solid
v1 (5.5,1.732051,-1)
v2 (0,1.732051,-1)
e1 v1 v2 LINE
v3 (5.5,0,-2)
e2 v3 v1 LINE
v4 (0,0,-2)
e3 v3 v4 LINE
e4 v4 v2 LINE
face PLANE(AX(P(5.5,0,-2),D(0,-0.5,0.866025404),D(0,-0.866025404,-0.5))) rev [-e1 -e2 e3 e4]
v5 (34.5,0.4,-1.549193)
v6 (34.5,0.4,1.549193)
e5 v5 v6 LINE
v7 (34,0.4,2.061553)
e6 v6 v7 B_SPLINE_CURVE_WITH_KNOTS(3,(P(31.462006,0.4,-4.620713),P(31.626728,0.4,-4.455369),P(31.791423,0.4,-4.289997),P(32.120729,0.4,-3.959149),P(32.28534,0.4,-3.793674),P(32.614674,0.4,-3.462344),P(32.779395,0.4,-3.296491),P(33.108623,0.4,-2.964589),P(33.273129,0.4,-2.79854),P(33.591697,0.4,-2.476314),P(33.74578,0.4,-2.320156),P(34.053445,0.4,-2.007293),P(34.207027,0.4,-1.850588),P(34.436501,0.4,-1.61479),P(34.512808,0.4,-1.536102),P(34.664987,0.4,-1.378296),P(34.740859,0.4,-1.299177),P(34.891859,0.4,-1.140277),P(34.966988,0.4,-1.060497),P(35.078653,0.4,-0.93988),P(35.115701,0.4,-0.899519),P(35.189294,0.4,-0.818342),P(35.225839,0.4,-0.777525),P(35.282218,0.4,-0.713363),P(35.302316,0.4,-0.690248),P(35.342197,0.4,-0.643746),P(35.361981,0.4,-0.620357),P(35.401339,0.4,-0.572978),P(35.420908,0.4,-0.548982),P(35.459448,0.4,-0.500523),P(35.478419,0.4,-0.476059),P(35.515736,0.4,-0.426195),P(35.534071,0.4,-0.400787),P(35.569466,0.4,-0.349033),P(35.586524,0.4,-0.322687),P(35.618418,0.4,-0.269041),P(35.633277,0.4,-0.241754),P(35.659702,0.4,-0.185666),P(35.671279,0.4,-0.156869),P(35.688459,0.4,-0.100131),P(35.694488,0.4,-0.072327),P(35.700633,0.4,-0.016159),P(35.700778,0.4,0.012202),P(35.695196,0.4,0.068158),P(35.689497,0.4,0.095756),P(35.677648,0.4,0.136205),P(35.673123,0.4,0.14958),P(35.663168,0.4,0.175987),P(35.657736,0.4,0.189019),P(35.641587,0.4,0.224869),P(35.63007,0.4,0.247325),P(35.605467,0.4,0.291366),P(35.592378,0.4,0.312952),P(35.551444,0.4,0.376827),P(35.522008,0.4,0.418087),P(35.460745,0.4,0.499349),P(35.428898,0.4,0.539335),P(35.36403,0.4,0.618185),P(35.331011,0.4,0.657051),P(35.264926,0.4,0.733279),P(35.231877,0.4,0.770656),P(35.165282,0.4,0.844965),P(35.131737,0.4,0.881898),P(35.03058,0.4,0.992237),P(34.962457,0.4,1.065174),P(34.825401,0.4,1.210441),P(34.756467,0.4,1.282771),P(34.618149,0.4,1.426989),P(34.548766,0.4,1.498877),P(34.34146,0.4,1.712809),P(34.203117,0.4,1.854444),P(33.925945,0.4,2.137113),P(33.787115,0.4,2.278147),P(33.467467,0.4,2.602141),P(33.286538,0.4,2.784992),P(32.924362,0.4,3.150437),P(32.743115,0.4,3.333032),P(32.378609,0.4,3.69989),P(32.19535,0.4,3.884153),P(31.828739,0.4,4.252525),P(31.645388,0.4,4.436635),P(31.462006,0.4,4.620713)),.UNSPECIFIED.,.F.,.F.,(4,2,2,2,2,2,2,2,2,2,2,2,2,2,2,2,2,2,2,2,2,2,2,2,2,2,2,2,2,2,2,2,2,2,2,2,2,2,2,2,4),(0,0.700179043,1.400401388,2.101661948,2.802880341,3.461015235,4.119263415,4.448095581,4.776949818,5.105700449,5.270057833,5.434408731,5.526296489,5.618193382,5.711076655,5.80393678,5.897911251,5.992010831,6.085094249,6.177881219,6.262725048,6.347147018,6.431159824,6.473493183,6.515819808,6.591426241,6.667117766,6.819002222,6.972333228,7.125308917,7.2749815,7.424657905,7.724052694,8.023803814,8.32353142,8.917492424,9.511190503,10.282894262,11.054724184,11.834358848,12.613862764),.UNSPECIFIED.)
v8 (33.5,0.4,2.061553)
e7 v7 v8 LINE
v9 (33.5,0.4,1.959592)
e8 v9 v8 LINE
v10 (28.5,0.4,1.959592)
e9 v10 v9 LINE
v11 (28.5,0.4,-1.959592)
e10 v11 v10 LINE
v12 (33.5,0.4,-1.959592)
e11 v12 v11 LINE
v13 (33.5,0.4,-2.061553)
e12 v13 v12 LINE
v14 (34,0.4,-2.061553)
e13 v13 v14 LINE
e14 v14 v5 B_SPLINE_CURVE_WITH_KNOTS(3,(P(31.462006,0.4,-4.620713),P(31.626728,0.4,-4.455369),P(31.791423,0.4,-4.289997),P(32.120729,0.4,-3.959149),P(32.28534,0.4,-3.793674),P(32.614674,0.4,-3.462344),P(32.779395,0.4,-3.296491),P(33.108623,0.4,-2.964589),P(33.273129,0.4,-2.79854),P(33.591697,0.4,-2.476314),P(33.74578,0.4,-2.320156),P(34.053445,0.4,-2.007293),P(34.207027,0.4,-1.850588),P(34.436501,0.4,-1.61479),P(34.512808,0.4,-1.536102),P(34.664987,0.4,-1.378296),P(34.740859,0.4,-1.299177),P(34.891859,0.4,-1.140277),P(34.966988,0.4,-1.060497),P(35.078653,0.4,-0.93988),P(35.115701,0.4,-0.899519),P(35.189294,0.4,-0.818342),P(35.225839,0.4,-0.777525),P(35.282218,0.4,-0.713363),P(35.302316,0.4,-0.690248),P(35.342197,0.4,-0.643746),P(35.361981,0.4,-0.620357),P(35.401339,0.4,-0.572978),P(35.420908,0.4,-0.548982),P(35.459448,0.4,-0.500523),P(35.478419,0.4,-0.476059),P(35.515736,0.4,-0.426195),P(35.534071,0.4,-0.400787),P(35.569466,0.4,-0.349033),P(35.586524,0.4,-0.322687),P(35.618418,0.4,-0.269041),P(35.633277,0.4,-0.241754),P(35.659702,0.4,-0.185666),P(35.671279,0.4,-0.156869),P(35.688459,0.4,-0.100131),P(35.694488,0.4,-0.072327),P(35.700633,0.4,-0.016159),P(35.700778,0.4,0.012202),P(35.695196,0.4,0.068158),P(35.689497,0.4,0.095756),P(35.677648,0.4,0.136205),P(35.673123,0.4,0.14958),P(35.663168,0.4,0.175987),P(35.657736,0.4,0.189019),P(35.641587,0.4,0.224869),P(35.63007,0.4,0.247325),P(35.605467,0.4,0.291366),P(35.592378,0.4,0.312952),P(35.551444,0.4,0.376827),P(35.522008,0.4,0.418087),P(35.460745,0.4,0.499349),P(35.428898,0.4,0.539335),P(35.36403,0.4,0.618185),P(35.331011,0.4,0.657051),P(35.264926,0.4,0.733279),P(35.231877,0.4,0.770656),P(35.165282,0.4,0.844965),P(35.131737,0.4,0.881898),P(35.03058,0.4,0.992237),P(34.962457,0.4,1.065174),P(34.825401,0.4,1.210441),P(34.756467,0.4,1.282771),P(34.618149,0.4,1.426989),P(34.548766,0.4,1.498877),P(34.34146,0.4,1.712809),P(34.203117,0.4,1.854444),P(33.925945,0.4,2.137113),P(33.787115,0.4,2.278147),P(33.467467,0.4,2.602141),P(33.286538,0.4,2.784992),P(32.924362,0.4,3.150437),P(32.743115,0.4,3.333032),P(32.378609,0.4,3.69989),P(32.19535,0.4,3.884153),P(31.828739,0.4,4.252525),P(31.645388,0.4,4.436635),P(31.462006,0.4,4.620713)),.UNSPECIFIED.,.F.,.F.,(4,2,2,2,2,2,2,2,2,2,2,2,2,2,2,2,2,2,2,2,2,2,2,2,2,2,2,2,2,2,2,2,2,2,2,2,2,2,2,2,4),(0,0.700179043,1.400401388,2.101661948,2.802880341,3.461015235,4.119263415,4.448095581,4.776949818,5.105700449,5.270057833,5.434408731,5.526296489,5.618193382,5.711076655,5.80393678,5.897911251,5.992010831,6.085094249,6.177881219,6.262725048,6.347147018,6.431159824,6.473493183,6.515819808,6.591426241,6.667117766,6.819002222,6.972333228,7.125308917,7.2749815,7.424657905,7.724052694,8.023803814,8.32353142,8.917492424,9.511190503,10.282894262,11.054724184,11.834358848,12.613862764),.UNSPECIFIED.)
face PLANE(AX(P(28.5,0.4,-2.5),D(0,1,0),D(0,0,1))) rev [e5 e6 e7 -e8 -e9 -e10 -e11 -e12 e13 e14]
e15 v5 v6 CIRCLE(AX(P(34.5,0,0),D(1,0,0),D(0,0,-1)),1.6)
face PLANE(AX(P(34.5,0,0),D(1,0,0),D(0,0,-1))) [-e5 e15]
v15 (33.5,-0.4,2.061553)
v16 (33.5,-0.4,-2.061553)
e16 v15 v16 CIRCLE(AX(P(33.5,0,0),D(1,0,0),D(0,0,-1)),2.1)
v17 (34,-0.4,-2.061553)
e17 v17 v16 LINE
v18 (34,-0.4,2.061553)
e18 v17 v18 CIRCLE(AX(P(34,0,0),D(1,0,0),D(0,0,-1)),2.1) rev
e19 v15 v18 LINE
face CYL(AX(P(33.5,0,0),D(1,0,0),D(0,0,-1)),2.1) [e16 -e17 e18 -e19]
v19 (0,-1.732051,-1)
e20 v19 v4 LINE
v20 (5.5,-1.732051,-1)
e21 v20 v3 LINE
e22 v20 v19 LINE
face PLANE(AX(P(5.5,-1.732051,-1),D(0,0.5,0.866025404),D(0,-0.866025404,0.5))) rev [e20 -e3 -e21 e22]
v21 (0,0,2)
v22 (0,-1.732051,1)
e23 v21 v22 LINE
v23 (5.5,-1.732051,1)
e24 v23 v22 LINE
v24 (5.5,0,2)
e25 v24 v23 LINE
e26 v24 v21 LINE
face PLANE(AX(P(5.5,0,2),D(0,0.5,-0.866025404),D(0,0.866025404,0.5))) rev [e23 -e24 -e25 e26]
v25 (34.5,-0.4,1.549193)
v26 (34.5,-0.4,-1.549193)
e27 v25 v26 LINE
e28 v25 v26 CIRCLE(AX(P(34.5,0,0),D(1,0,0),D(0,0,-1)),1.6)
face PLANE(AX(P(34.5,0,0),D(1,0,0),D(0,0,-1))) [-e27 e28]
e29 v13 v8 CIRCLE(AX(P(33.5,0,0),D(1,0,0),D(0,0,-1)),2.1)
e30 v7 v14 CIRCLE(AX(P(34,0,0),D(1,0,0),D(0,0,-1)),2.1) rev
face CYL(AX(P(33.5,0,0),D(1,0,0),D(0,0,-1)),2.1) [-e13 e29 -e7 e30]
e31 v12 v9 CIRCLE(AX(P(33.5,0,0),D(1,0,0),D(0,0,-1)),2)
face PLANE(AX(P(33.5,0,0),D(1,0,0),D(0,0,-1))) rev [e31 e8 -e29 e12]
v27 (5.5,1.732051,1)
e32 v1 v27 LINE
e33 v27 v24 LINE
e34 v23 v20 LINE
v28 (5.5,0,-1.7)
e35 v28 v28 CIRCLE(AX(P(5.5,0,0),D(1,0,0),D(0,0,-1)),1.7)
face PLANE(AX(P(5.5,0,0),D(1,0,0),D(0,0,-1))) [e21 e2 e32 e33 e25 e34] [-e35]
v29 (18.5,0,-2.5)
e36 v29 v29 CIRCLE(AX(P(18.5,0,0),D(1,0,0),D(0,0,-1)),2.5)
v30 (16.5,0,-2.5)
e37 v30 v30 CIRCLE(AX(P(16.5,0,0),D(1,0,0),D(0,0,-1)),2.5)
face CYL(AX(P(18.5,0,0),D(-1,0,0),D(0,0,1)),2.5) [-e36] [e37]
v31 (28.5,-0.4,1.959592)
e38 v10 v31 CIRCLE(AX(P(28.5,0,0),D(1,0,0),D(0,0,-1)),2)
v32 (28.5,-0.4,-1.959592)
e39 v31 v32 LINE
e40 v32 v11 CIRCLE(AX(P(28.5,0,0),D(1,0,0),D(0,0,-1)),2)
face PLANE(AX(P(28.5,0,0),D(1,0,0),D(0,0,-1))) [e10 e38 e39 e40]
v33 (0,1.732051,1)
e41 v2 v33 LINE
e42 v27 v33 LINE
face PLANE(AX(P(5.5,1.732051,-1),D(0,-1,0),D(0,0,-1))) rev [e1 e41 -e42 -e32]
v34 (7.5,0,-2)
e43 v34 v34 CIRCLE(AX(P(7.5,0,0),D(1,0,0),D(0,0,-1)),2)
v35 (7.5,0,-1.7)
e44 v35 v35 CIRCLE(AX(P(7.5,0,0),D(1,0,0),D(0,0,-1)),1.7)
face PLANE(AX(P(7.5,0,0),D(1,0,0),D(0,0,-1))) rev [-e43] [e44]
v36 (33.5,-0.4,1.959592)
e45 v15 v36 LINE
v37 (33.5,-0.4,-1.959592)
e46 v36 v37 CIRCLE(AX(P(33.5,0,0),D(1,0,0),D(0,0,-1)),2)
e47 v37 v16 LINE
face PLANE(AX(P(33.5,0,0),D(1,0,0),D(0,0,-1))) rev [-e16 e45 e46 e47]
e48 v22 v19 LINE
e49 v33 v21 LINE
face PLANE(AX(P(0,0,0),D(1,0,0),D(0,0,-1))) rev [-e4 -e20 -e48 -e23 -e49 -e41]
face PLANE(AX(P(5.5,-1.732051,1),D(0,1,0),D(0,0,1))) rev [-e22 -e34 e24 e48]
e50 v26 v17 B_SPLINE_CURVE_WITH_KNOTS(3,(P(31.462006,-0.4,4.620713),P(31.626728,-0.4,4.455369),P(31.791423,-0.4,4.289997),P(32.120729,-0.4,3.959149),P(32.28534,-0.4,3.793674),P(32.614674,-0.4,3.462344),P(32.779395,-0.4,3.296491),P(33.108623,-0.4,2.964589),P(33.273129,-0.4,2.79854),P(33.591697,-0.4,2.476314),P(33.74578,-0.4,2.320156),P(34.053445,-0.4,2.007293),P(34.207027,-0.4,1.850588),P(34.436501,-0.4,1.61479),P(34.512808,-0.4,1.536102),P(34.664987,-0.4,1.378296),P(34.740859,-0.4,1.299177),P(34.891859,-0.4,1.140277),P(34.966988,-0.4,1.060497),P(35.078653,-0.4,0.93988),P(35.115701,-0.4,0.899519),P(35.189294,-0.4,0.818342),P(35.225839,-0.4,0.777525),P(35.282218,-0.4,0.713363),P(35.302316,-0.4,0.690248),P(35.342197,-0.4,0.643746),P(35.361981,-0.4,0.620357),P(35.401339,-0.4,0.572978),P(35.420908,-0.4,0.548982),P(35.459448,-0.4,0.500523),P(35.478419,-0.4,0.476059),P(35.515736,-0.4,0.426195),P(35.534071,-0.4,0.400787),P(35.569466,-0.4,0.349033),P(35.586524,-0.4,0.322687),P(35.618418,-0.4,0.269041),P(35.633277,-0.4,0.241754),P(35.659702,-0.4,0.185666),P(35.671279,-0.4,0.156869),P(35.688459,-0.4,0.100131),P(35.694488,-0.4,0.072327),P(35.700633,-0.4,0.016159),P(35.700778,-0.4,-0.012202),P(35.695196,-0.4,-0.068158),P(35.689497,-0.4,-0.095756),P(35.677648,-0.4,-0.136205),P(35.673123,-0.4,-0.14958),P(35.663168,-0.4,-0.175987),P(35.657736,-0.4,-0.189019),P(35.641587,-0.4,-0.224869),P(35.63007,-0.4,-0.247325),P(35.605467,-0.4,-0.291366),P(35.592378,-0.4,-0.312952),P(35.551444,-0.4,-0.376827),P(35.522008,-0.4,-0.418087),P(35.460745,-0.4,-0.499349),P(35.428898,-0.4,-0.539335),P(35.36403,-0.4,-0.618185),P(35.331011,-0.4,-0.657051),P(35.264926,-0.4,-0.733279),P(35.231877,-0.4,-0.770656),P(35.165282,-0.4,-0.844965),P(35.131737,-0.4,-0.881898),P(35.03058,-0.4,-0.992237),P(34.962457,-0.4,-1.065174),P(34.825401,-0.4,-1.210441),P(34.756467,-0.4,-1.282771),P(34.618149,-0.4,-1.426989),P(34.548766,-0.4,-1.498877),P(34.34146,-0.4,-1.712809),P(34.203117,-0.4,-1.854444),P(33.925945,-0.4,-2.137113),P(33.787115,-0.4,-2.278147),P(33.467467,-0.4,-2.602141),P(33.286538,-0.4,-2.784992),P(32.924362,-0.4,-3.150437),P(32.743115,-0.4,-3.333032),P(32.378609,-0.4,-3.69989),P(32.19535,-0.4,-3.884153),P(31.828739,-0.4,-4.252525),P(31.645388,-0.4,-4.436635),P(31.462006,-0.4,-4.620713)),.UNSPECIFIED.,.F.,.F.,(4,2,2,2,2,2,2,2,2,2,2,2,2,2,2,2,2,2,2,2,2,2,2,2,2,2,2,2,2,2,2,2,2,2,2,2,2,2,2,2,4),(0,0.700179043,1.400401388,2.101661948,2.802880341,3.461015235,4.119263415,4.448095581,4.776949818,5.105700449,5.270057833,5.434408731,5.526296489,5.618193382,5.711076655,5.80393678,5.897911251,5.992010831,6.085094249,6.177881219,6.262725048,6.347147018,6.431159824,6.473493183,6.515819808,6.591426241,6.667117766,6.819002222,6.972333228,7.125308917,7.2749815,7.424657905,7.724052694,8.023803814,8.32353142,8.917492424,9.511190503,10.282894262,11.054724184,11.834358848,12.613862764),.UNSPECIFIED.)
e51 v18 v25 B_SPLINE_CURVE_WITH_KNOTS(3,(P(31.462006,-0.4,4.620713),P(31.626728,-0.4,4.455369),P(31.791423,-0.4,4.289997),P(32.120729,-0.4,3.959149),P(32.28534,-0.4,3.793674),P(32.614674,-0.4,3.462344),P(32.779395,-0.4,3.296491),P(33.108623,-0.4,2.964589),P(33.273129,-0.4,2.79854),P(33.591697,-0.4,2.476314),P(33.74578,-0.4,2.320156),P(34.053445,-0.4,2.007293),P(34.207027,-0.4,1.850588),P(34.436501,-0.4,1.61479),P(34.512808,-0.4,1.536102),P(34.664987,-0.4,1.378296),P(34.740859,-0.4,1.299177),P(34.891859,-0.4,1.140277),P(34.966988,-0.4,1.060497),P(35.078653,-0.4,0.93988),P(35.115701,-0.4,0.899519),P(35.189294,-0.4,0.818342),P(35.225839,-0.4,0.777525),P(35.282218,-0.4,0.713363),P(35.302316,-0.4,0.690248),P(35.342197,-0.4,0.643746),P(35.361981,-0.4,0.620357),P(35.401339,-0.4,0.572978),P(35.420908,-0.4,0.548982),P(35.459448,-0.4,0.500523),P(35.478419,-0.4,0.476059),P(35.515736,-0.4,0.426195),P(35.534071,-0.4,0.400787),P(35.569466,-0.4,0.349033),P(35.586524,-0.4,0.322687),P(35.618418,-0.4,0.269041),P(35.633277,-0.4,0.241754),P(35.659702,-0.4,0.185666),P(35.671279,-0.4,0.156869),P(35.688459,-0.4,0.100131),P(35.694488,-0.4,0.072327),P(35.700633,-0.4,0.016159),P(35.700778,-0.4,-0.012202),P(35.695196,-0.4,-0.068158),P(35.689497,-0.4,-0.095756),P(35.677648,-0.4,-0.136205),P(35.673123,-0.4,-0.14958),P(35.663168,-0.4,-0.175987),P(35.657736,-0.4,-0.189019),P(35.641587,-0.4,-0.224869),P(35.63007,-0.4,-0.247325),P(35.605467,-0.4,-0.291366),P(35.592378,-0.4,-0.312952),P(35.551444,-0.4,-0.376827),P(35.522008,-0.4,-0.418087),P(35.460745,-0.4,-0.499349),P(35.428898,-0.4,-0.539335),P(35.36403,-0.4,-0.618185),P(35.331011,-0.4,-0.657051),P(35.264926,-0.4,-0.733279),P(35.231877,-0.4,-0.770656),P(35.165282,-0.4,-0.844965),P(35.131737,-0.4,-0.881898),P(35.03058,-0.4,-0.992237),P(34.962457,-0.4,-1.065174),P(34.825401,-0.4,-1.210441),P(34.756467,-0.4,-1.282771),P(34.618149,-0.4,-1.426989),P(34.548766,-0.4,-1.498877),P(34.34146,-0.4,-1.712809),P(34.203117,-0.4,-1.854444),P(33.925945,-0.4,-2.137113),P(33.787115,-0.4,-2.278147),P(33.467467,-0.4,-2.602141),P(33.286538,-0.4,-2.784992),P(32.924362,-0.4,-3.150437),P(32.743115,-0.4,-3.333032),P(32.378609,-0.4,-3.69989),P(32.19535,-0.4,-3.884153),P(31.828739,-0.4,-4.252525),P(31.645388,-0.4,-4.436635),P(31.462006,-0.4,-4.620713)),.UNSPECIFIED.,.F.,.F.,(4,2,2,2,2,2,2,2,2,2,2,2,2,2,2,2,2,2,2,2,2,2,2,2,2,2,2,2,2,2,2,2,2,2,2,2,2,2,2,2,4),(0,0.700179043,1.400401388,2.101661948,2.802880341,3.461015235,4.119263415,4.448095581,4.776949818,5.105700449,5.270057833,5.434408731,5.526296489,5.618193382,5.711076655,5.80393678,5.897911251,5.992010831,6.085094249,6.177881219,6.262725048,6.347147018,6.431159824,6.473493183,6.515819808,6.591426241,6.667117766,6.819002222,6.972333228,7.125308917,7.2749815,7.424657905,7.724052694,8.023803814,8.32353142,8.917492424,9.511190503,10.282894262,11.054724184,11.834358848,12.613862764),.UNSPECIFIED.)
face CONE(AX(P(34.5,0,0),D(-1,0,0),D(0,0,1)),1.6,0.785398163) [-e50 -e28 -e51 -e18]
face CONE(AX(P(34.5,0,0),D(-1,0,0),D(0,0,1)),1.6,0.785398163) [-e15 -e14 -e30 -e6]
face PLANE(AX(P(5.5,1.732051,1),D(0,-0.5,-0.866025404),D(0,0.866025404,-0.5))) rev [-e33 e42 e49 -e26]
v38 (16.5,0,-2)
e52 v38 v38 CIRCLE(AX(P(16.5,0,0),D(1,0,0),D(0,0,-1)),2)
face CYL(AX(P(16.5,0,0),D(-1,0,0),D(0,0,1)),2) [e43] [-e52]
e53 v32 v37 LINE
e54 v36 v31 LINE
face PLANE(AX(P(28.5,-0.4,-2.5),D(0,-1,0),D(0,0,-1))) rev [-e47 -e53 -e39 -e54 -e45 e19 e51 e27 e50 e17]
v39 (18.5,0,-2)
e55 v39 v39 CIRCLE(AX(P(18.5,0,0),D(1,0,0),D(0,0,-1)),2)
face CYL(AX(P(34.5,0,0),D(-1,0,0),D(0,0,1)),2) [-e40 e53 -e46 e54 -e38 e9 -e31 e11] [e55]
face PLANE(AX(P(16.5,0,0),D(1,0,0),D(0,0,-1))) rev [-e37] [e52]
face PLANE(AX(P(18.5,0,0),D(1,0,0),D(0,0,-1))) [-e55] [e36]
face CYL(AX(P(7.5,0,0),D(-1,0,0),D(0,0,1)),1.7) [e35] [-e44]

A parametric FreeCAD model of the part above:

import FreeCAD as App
import Part
import Sketcher

V = App.Vector
Q = App.Units.Quantity


def edges_at(feature, points):
    """Names of the edges that pass closest to the given points."""
    edges = feature.Shape.Edges
    near = lambda p: min(range(len(edges)), key=lambda i: edges[i].distToShape(Part.Vertex(*p))[0])
    return sorted({f"Edge{near(p) + 1}" for p in points})

doc = App.newDocument("Part")
body = doc.addObject("PartDesign::Body", "Body")

# Sketch on YZ plane
sketch1 = doc.addObject("Sketcher::SketchObject", "Sketch")
body.addObject(sketch1)
sketch1.AttachmentSupport = (doc.YZ_Plane, [""])
sketch1.MapMode = "FlatFace"
sketch1.addGeometry([
    Part.LineSegment(V(0, 2, 0), V(-1.7, 1, 0)),  # 0
    Part.LineSegment(V(-1.7, 1, 0), V(-1.7, -1, 0)),  # 1
    Part.LineSegment(V(-1.7, -1, 0), V(0, -2, 0)),  # 2
    Part.LineSegment(V(0, -2, 0), V(1.7, -1, 0)),  # 3
    Part.LineSegment(V(1.7, -1, 0), V(1.7, 1, 0)),  # 4
    Part.LineSegment(V(1.7, 1, 0), V(0, 2, 0)),  # 5
], False)
sketch1.addConstraint([
    Sketcher.Constraint("Coincident", 0, 2, 1, 1),
    Sketcher.Constraint("Coincident", 1, 2, 2, 1),
    Sketcher.Constraint("Coincident", 2, 2, 3, 1),
    Sketcher.Constraint("Coincident", 3, 2, 4, 1),
    Sketcher.Constraint("Coincident", 4, 2, 5, 1),
    Sketcher.Constraint("Coincident", 5, 2, 0, 1),
    Sketcher.Constraint("Vertical", 1),
    Sketcher.Constraint("Vertical", 4),
    Sketcher.Constraint("Symmetric", 0, 2, 3, 2, -1, 1),
    Sketcher.Constraint("Symmetric", 2, 2, 5, 2, -1, 1),
    Sketcher.Constraint("PointOnObject", 2, 2, -2),
    Sketcher.Constraint("Parallel", 2, 5),
    Sketcher.Constraint("Horizontal", 1, 2, 3, 2),
    Sketcher.Constraint("DistanceY", 1, 2, 1, 1, 2.0),
    Sketcher.Constraint("Angle", 0, Q("-150 deg")),
    Sketcher.Constraint("Distance", 0, 2.0),
])
pad1 = doc.addObject("PartDesign::Pad", "Pad")
body.addObject(pad1)
pad1.Profile = sketch1
pad1.Length = 5.5

# Sketch on YZ plane
sketch2 = doc.addObject("Sketcher::SketchObject", "Sketch001")
body.addObject(sketch2)
sketch2.AttachmentSupport = (doc.YZ_Plane, [""])
sketch2.MapMode = "FlatFace"
sketch2.AttachmentOffset = App.Placement(V(0, 0, 5.5), App.Rotation())
sketch2.addGeometry(Part.Circle(V(0, 0, 0), V(0, 0, 1), 1.7), False)
sketch2.addConstraint([
    Sketcher.Constraint("Coincident", 0, 3, -1, 1),
    Sketcher.Constraint("Diameter", 0, 3.4),
])
pad2 = doc.addObject("PartDesign::Pad", "Pad001")
body.addObject(pad2)
pad2.Profile = sketch2
pad2.Length = 2

# Sketch on YZ plane
sketch3 = doc.addObject("Sketcher::SketchObject", "Sketch002")
body.addObject(sketch3)
sketch3.AttachmentSupport = (doc.YZ_Plane, [""])
sketch3.MapMode = "FlatFace"
sketch3.AttachmentOffset = App.Placement(V(0, 0, 7.5), App.Rotation())
sketch3.addGeometry(Part.Circle(V(0, 0, 0), V(0, 0, 1), 2), False)
sketch3.addConstraint([
    Sketcher.Constraint("Coincident", 0, 3, -1, 1),
    Sketcher.Constraint("Diameter", 0, 4.0),
])
pad3 = doc.addObject("PartDesign::Pad", "Pad002")
body.addObject(pad3)
pad3.Profile = sketch3
pad3.Length = 9

# Sketch on YZ plane
sketch4 = doc.addObject("Sketcher::SketchObject", "Sketch003")
body.addObject(sketch4)
sketch4.AttachmentSupport = (doc.YZ_Plane, [""])
sketch4.MapMode = "FlatFace"
sketch4.AttachmentOffset = App.Placement(V(0, 0, 16.5), App.Rotation())
sketch4.addGeometry(Part.Circle(V(0, 0, 0), V(0, 0, 1), 2.5), False)
sketch4.addConstraint([
    Sketcher.Constraint("Coincident", 0, 3, -1, 1),
    Sketcher.Constraint("Diameter", 0, 5.0),
])
pad4 = doc.addObject("PartDesign::Pad", "Pad003")
body.addObject(pad4)
pad4.Profile = sketch4
pad4.Length = 2

# Sketch on YZ plane
sketch5 = doc.addObject("Sketcher::SketchObject", "Sketch004")
body.addObject(sketch5)
sketch5.AttachmentSupport = (doc.YZ_Plane, [""])
sketch5.MapMode = "FlatFace"
sketch5.AttachmentOffset = App.Placement(V(0, 0, 18.5), App.Rotation())
sketch5.addGeometry(Part.Circle(V(0, 0, 0), V(0, 0, 1), 2), False)
sketch5.addConstraint([
    Sketcher.Constraint("Coincident", 0, 3, -1, 1),
    Sketcher.Constraint("Diameter", 0, 4.0),
])
pad5 = doc.addObject("PartDesign::Pad", "Pad004")
body.addObject(pad5)
pad5.Profile = sketch5
pad5.Length = 16

# Sketch on YZ plane
sketch6 = doc.addObject("Sketcher::SketchObject", "Sketch005")
body.addObject(sketch6)
sketch6.AttachmentSupport = (doc.YZ_Plane, [""])
sketch6.MapMode = "FlatFace"
sketch6.AttachmentOffset = App.Placement(V(0, 0, 34.5), App.Rotation())
sketch6.addGeometry(Part.Circle(V(0, 0, 0), V(0, 0, 1), 2.1), False)
sketch6.addConstraint([
    Sketcher.Constraint("Coincident", 0, 3, -1, 1),
    Sketcher.Constraint("Diameter", 0, 4.2),
])
pad6 = doc.addObject("PartDesign::Pad", "Pad005")
body.addObject(pad6)
pad6.Profile = sketch6
pad6.Length = 1
pad6.Reversed = True
doc.recompute()

chamfer = doc.addObject("PartDesign::Chamfer", "Chamfer")
body.addObject(chamfer)
chamfer.Base = (pad6, edges_at(pad6, [(34.5, 0, 2.1)]))
chamfer.Size = 0.5

# Sketch on YZ plane
sketch7 = doc.addObject("Sketcher::SketchObject", "Sketch006")
body.addObject(sketch7)
sketch7.AttachmentSupport = (doc.YZ_Plane, [""])
sketch7.MapMode = "FlatFace"
sketch7.AttachmentOffset = App.Placement(V(0, 0, 34.5), App.Rotation())
sketch7.addGeometry([
    Part.LineSegment(V(0.4, 2.5, 0), V(-0.4, 2.5, 0)),
    Part.LineSegment(V(-0.4, 2.5, 0), V(-0.4, -2.5, 0)),
    Part.LineSegment(V(-0.4, -2.5, 0), V(0.4, -2.5, 0)),
    Part.LineSegment(V(0.4, -2.5, 0), V(0.4, 2.5, 0)),
], False)
sketch7.addConstraint([
    Sketcher.Constraint("Coincident", 0, 2, 1, 1),
    Sketcher.Constraint("Coincident", 1, 2, 2, 1),
    Sketcher.Constraint("Coincident", 2, 2, 3, 1),
    Sketcher.Constraint("Coincident", 3, 2, 0, 1),
    Sketcher.Constraint("Horizontal", 0),
    Sketcher.Constraint("Vertical", 1),
    Sketcher.Constraint("Horizontal", 2),
    Sketcher.Constraint("Vertical", 3),
    Sketcher.Constraint("Symmetric", 0, 2, 2, 2, -1, 1),
    Sketcher.Constraint("DistanceY", 1, 2, 1, 1, 5.0),
    Sketcher.Constraint("DistanceX", 0, 2, 0, 1, 0.8),
])
pocket1 = doc.addObject("PartDesign::Pocket", "Pocket")
body.addObject(pocket1)
pocket1.Profile = sketch7
pocket1.Length = 6

doc.recompute()
